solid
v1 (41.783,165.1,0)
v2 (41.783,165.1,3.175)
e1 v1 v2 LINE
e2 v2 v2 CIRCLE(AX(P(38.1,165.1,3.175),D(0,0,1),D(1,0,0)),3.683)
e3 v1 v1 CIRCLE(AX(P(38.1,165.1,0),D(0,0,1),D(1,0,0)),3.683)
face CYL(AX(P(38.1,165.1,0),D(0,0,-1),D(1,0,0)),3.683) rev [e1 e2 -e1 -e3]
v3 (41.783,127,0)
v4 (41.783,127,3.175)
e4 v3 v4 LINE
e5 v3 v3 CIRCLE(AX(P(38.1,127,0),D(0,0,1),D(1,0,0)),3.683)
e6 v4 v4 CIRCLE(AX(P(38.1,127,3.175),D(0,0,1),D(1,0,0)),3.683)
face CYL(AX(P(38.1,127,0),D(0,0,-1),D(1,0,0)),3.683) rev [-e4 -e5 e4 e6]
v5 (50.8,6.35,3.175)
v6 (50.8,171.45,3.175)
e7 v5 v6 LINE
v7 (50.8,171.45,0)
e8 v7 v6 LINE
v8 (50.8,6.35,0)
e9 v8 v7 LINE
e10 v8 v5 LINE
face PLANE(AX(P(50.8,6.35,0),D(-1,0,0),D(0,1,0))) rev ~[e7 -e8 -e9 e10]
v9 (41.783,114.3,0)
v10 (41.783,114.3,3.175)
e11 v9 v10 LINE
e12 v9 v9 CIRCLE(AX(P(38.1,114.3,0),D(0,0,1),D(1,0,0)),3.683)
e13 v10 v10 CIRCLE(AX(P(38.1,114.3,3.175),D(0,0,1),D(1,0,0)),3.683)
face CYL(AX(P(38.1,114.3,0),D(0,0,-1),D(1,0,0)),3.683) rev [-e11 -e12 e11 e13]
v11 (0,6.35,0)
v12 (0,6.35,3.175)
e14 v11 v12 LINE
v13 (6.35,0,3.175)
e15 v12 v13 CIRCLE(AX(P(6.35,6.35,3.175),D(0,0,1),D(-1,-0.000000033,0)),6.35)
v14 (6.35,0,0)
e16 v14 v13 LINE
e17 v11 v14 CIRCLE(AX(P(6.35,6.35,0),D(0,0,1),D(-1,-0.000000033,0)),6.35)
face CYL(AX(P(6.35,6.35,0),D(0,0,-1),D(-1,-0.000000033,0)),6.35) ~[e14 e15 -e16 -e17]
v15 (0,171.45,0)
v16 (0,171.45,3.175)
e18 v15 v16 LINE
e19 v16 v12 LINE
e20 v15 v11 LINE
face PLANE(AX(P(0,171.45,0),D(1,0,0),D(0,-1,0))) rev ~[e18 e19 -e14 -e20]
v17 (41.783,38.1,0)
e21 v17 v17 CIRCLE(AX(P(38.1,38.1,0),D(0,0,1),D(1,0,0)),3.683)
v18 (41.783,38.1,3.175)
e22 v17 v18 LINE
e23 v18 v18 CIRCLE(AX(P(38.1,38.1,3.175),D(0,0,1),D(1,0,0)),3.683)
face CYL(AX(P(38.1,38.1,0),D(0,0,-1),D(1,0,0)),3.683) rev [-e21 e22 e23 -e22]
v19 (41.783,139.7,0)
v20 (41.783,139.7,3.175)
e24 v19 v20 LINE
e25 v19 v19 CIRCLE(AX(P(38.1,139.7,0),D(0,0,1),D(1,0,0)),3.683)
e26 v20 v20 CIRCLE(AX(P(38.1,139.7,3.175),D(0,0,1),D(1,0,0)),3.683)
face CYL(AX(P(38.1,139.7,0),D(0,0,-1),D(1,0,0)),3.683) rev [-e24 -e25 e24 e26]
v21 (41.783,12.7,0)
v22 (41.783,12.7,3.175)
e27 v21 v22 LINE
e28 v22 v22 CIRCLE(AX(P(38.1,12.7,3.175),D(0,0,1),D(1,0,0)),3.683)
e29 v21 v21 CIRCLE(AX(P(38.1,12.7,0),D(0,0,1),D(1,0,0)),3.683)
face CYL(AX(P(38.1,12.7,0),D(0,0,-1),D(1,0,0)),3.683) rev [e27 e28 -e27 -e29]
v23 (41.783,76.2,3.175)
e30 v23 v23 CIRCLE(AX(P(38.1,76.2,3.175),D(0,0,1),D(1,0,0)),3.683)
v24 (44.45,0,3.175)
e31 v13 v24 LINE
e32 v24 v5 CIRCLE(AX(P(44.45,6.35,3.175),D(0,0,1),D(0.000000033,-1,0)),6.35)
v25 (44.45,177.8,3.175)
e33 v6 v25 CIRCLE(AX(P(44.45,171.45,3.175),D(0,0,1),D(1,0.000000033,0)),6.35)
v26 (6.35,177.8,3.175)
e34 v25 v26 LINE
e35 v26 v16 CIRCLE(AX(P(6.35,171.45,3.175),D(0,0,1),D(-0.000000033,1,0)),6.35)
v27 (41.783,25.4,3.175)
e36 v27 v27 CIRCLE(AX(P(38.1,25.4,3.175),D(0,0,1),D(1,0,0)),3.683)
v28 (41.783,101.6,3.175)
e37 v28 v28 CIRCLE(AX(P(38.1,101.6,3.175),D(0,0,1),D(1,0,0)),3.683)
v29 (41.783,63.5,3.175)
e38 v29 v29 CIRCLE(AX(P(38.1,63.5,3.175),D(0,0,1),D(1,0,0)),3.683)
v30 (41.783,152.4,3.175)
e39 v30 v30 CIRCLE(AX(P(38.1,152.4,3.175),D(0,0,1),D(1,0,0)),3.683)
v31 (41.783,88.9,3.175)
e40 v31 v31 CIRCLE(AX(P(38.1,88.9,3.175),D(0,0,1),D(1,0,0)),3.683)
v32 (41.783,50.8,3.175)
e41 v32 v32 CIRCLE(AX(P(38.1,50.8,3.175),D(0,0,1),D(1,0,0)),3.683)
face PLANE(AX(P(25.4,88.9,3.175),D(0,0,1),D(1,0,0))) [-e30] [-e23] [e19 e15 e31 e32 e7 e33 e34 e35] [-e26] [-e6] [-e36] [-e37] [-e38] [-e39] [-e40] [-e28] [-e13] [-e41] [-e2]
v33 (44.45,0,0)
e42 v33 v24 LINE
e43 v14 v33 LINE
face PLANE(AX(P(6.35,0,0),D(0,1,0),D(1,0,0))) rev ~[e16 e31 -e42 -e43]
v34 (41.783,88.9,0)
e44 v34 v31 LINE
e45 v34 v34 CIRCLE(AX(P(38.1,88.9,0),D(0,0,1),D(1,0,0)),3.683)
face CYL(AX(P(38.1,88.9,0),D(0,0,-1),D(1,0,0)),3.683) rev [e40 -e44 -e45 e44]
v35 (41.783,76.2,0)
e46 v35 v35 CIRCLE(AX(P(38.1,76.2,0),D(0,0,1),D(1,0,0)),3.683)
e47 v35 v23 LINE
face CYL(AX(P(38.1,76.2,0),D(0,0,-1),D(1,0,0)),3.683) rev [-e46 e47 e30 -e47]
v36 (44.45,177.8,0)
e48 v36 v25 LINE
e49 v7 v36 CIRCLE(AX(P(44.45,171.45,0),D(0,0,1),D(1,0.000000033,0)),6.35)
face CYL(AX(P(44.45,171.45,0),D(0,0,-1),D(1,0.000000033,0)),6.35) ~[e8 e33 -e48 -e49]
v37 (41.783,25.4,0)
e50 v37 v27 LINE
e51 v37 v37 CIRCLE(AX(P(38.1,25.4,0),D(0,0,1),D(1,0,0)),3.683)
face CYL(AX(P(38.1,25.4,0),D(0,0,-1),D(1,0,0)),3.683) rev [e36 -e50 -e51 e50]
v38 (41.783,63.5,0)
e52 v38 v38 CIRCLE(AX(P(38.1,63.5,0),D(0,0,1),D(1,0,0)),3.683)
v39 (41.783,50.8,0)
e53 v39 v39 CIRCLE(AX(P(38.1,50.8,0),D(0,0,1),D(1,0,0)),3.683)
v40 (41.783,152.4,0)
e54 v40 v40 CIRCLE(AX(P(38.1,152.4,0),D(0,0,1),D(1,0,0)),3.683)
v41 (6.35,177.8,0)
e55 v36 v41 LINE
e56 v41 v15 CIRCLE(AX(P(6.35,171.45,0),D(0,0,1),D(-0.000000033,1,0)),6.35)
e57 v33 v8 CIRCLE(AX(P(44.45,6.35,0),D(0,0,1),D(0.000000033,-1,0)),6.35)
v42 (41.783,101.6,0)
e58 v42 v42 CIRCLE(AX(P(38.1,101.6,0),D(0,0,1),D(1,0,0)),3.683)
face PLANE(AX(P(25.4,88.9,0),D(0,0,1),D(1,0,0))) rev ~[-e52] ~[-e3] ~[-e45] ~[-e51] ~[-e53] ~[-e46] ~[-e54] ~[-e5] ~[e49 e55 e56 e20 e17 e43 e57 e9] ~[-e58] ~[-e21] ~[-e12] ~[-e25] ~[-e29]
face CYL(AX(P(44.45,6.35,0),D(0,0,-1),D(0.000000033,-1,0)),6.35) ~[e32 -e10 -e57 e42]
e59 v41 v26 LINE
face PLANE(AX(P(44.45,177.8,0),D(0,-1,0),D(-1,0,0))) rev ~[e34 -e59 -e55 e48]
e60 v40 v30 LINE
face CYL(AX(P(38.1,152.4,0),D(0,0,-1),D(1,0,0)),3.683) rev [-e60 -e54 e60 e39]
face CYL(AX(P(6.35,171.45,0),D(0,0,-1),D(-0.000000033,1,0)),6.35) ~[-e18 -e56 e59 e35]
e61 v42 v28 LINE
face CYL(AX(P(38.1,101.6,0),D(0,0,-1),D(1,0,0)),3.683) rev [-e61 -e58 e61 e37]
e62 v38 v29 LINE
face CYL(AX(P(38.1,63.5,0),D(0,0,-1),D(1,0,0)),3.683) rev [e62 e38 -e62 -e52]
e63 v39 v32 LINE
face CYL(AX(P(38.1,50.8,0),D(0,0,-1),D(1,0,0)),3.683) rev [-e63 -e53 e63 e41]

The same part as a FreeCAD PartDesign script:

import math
import FreeCAD as App
import Part
import Sketcher
Q = App.Units.Quantity

doc = App.newDocument("Part")
body = doc.addObject("PartDesign::Body", "Body")

sketch1 = doc.addObject("Sketcher::SketchObject", "Sketch")
body.addObject(sketch1)
sketch1.AttachmentSupport = (doc.XY_Plane, [""])
sketch1.MapMode = "FlatFace"
sketch1.addGeometry([
    Part.ArcOfCircle(Part.Circle(App.Vector(6.4, 6.4, 0), App.Vector(0, 0, 1), 6.4), math.radians(-180), math.radians(-90)),
    Part.LineSegment(App.Vector(6.3, 0, 0), App.Vector(44.5, 0, 0)),
    Part.ArcOfCircle(Part.Circle(App.Vector(44.4, 6.4, 0), App.Vector(0, 0, 1), 6.4), math.radians(-90), math.radians(0)),
    Part.LineSegment(App.Vector(50.8, 6.3, 0), App.Vector(50.8, 171.4, 0)),
    Part.ArcOfCircle(Part.Circle(App.Vector(44.4, 171.4, 0), App.Vector(0, 0, 1), 6.4), math.radians(0), math.radians(90)),
    Part.LineSegment(App.Vector(44.5, 177.8, 0), App.Vector(6.3, 177.8, 0)),
    Part.ArcOfCircle(Part.Circle(App.Vector(6.4, 171.4, 0), App.Vector(0, 0, 1), 6.4), math.radians(90), math.radians(180)),
    Part.LineSegment(App.Vector(0, 171.4, 0), App.Vector(0, 6.3, 0)),
    Part.Circle(App.Vector(38.1, 12.7, 0), App.Vector(0, 0, 1), 3.7),
    Part.Circle(App.Vector(38.1, 25.4, 0), App.Vector(0, 0, 1), 3.7),
    Part.Circle(App.Vector(38.1, 38.1, 0), App.Vector(0, 0, 1), 3.7),
    Part.Circle(App.Vector(38.1, 50.8, 0), App.Vector(0, 0, 1), 3.7),
    Part.Circle(App.Vector(38.1, 63.5, 0), App.Vector(0, 0, 1), 3.7),
    Part.Circle(App.Vector(38.1, 76.2, 0), App.Vector(0, 0, 1), 3.7),
    Part.Circle(App.Vector(38.1, 88.9, 0), App.Vector(0, 0, 1), 3.7),
    Part.Circle(App.Vector(38.1, 101.6, 0), App.Vector(0, 0, 1), 3.7),
    Part.Circle(App.Vector(38.1, 114.3, 0), App.Vector(0, 0, 1), 3.7),
    Part.Circle(App.Vector(38.1, 127, 0), App.Vector(0, 0, 1), 3.7),
    Part.Circle(App.Vector(38.1, 139.7, 0), App.Vector(0, 0, 1), 3.7),
    Part.Circle(App.Vector(38.1, 152.4, 0), App.Vector(0, 0, 1), 3.7),
    Part.Circle(App.Vector(38.1, 165.1, 0), App.Vector(0, 0, 1), 3.7),
], False)
sketch1.addConstraint([
    Sketcher.Constraint("Tangent", 0, 2, 1, 1),
    Sketcher.Constraint("Tangent", 1, 2, 2, 1),
    Sketcher.Constraint("Tangent", 2, 2, 3, 1),
    Sketcher.Constraint("Tangent", 3, 2, 4, 1),
    Sketcher.Constraint("Tangent", 4, 2, 5, 1),
    Sketcher.Constraint("Tangent", 5, 2, 6, 1),
    Sketcher.Constraint("Tangent", 6, 2, 7, 1),
    Sketcher.Constraint("Tangent", 7, 2, 0, 1),
    Sketcher.Constraint("Horizontal", 1),
    Sketcher.Constraint("Vertical", 3),
    Sketcher.Constraint("Horizontal", 5),
    Sketcher.Constraint("Vertical", 7),
    Sketcher.Constraint("Equal", 0, 2),
    Sketcher.Constraint("Equal", 2, 4),
    Sketcher.Constraint("Equal", 4, 6),
    Sketcher.Constraint("Equal", 8, 9),
    Sketcher.Constraint("Equal", 9, 10),
    Sketcher.Constraint("Equal", 10, 11),
    Sketcher.Constraint("Equal", 11, 12),
    Sketcher.Constraint("Equal", 12, 13),
    Sketcher.Constraint("Equal", 13, 14),
    Sketcher.Constraint("Equal", 14, 15),
    Sketcher.Constraint("Equal", 15, 16),
    Sketcher.Constraint("Equal", 16, 17),
    Sketcher.Constraint("Equal", 17, 18),
    Sketcher.Constraint("Equal", 18, 19),
    Sketcher.Constraint("Equal", 19, 20),
    Sketcher.Constraint("PointOnObject", 0, 2, -1),
    Sketcher.Constraint("PointOnObject", 6, 2, -2),
    Sketcher.Constraint("Vertical", 8, 3, 9, 3),
    Sketcher.Constraint("Vertical", 9, 3, 10, 3),
    Sketcher.Constraint("Vertical", 10, 3, 11, 3),
    Sketcher.Constraint("Vertical", 11, 3, 12, 3),
    Sketcher.Constraint("Vertical", 12, 3, 13, 3),
    Sketcher.Constraint("Vertical", 13, 3, 14, 3),
    Sketcher.Constraint("Vertical", 14, 3, 15, 3),
    Sketcher.Constraint("Vertical", 15, 3, 16, 3),
    Sketcher.Constraint("Vertical", 16, 3, 17, 3),
    Sketcher.Constraint("Vertical", 17, 3, 18, 3),
    Sketcher.Constraint("Vertical", 18, 3, 19, 3),
    Sketcher.Constraint("Vertical", 19, 3, 20, 3),
    Sketcher.Constraint("Diameter", 8, Q("0.29 in")),
    Sketcher.Constraint("Radius", 0, Q("0.25 in")),
    Sketcher.Constraint("DistanceX", 1, 1, 1, 2, Q("1.5 in")),
    Sketcher.Constraint("DistanceY", 3, 1, 3, 2, Q("6.5 in")),
    Sketcher.Constraint("DistanceY", -1, 1, 9, 3, Q("1 in")),
    Sketcher.Constraint("DistanceY", -1, 1, 11, 3, Q("2 in")),
    Sketcher.Constraint("DistanceY", -1, 1, 13, 3, Q("3 in")),
    Sketcher.Constraint("DistanceY", -1, 1, 15, 3, Q("4 in")),
    Sketcher.Constraint("DistanceY", -1, 1, 17, 3, Q("5 in")),
    Sketcher.Constraint("DistanceY", -1, 1, 19, 3, Q("6 in")),
    Sketcher.Constraint("DistanceY", 8, 3, 10, 3, Q("1 in")),
    Sketcher.Constraint("DistanceY", 10, 3, 12, 3, Q("1 in")),
    Sketcher.Constraint("DistanceY", 12, 3, 14, 3, Q("1 in")),
    Sketcher.Constraint("DistanceY", 14, 3, 16, 3, Q("1 in")),
    Sketcher.Constraint("DistanceY", 16, 3, 18, 3, Q("1 in")),
    Sketcher.Constraint("DistanceY", 18, 3, 20, 3, Q("1 in")),
    Sketcher.Constraint("DistanceX", -1, 1, 8, 3, Q("1.5 in")),
    Sketcher.Constraint("DistanceY", -1, 1, 8, 3, Q("0.5 in")),
])
pad1 = doc.addObject("PartDesign::Pad", "Pad")
body.addObject(pad1)
pad1.Profile = sketch1
pad1.Length = Q("0.125 in")

doc.recompute()
